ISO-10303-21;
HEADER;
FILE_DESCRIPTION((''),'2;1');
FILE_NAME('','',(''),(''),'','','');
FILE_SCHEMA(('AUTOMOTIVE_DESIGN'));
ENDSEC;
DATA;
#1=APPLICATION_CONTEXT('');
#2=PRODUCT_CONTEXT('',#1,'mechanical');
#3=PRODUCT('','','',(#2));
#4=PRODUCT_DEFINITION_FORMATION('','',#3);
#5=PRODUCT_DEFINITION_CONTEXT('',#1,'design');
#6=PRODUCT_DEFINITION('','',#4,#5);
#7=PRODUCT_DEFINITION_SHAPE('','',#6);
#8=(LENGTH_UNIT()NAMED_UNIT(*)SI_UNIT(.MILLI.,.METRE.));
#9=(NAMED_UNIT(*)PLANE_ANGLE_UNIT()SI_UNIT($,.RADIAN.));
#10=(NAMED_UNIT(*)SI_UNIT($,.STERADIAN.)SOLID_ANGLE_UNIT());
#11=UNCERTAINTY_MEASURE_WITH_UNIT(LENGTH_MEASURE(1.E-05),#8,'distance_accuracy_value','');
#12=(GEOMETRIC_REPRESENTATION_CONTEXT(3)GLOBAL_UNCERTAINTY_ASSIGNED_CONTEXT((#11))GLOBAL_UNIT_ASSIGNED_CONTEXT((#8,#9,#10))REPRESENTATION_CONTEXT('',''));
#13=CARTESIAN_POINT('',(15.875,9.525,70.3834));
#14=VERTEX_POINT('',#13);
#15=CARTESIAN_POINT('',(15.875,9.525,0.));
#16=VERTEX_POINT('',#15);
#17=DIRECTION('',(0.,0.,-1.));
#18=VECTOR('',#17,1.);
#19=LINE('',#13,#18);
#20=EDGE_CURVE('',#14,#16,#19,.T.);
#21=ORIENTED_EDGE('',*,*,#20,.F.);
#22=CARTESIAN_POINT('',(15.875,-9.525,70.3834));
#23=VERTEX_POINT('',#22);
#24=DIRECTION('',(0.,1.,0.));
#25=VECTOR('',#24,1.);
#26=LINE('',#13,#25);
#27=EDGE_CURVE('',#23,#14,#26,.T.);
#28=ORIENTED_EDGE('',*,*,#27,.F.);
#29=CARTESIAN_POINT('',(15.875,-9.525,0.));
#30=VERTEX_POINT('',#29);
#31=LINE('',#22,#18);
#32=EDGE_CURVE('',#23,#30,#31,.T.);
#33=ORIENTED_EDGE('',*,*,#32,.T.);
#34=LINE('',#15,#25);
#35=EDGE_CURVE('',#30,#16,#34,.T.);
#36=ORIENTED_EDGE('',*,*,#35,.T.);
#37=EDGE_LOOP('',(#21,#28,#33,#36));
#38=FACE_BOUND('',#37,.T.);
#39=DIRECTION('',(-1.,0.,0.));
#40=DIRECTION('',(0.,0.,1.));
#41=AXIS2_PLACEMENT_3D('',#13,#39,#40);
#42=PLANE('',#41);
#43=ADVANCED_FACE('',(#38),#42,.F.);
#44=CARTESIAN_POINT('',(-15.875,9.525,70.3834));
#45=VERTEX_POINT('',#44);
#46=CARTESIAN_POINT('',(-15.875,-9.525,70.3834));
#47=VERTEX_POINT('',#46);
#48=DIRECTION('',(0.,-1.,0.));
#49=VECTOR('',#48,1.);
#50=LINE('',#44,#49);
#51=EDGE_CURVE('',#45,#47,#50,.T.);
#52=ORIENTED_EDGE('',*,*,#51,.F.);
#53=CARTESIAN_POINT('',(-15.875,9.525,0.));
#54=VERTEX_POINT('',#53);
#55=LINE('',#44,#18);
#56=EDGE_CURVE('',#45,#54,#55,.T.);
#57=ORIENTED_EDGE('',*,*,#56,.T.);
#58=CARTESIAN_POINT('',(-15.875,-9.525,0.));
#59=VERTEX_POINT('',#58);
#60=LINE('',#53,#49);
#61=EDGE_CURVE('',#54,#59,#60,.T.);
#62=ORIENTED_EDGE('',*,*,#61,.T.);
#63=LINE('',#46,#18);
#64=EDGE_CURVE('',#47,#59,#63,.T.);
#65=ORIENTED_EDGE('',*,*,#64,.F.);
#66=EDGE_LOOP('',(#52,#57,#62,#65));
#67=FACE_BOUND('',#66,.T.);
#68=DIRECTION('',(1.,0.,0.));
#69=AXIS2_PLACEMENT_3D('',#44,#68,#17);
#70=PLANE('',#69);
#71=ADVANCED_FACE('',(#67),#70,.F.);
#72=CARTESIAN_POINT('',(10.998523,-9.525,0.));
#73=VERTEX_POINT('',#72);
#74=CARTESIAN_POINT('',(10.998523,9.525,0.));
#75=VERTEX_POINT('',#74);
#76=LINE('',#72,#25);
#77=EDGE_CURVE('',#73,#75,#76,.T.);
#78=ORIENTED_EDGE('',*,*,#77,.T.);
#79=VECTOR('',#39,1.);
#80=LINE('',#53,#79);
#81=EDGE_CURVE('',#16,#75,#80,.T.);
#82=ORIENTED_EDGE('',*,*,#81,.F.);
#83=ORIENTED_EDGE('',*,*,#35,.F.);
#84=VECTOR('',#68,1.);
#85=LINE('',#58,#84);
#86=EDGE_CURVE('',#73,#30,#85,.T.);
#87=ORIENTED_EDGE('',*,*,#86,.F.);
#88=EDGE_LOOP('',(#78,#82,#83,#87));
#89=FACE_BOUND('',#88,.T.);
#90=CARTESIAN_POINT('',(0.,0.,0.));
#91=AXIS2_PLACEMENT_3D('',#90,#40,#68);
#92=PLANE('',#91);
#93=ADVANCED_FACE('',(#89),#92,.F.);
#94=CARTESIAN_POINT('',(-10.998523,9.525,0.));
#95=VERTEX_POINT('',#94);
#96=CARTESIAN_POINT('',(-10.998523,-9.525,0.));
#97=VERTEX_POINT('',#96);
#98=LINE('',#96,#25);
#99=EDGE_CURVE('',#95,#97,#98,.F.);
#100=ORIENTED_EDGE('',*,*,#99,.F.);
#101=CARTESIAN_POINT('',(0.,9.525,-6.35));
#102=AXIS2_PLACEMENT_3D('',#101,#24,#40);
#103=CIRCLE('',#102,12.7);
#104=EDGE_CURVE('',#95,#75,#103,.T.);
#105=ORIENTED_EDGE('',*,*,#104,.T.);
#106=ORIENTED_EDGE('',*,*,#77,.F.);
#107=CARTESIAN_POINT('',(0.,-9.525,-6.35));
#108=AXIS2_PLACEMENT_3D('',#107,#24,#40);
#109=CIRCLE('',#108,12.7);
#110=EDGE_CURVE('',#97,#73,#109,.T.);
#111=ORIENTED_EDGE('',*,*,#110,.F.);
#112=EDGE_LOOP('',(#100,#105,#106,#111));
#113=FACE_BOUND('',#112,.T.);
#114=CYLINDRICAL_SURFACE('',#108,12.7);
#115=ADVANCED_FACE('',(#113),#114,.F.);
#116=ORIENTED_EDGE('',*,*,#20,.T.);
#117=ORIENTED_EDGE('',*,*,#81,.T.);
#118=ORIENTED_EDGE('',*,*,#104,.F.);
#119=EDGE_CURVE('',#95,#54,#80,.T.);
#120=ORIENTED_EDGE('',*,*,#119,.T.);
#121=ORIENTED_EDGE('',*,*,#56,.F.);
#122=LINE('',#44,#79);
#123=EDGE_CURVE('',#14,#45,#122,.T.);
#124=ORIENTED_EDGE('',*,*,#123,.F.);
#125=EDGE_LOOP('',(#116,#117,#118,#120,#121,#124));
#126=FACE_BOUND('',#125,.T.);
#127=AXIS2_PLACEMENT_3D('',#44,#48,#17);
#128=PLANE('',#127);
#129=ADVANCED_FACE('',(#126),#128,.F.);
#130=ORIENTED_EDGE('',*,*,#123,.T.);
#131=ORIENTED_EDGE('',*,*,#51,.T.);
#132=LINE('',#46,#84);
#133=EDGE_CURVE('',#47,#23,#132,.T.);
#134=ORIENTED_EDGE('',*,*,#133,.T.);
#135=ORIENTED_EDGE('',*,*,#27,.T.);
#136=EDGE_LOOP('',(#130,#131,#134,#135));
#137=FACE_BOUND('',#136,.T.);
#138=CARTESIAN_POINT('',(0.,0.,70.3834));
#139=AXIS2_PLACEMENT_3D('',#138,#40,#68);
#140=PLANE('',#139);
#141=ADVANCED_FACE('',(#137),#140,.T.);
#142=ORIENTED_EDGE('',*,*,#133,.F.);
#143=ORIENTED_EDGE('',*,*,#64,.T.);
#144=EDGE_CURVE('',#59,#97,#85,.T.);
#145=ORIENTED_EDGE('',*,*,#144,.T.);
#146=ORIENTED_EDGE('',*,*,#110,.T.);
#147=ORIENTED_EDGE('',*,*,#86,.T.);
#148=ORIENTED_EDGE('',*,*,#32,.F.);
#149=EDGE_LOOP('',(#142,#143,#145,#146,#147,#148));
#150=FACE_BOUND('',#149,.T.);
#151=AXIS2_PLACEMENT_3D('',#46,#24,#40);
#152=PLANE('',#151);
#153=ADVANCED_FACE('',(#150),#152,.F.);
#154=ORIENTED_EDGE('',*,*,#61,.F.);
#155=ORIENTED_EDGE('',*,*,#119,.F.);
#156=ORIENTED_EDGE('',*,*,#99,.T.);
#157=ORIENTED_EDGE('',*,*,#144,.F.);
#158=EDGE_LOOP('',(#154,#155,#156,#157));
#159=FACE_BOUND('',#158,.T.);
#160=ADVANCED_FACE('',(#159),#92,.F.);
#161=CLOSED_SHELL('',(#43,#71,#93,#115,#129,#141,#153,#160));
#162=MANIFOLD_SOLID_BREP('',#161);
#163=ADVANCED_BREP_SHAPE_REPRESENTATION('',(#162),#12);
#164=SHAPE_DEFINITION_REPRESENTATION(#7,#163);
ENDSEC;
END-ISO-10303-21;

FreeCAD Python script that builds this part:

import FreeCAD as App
import Part
import Sketcher
Q = App.Units.Quantity


def add_polygon(sketch, points):
    """Adds a closed chain of lines whose ends are joined by coincident constraints."""
    first, n = sketch.GeometryCount, len(points)
    for a, b in zip(points, points[1:] + points[:1]):
        sketch.addGeometry(Part.LineSegment(App.Vector(*a, 0), App.Vector(*b, 0)), False)
    for i in range(n):
        sketch.addConstraint(Sketcher.Constraint("Coincident", first + i, 2, first + (i + 1) % n, 1))

doc = App.newDocument("Part")
params = doc.addObject("Spreadsheet::Sheet", "Params")
for row, (alias, value) in enumerate([
    ("sketch1_width", "1.25 in"),
    ("sketch1_height", "0.75 in"),
    ("pad1_length", "2.771 in"),
    ("sketch2_diameter", "1 in"),
], start=1):
    params.set(f"A{row}", alias)
    params.set(f"B{row}", "=" + value)
    params.setAlias(f"B{row}", alias)

body = doc.addObject("PartDesign::Body", "Body")

sketch1 = body.newObject("Sketcher::SketchObject", "Sketch")
sketch1.AttachmentSupport = (doc.getObject("XY_Plane"), [""])
sketch1.MapMode = "FlatFace"
add_polygon(sketch1, [(-15.875, 9.525), (-15.875, -9.525), (15.875, -9.525), (15.875, 9.525)])
sketch1.addConstraint([
    Sketcher.Constraint("Vertical", 0),
    Sketcher.Constraint("Horizontal", 1),
    Sketcher.Constraint("Vertical", 2),
    Sketcher.Constraint("Horizontal", 3),
    Sketcher.Constraint("Symmetric", 0, 2, 2, 2, -1, 1),
    Sketcher.Constraint("DistanceX", 1, 1, 1, 2, Q("1.25 in")),
    Sketcher.Constraint("DistanceY", 0, 2, 0, 1, Q("0.75 in")),
])
sketch1.setExpression("Constraints[9]", "Params.sketch1_width")
sketch1.setExpression("Constraints[10]", "Params.sketch1_height")
pad1 = body.newObject("PartDesign::Pad", "Pad")
pad1.Profile = sketch1
pad1.setExpression("Length", "Params.pad1_length")

sketch2 = body.newObject("Sketcher::SketchObject", "Sketch001")
sketch2.AttachmentSupport = (doc.getObject("XZ_Plane"), [""])
sketch2.MapMode = "FlatFace"
sketch2.AttachmentOffset = App.Placement(App.Vector(0, 0, -0.375 * 25.4), App.Rotation())
sketch2.addGeometry(Part.Circle(App.Vector(0, -6.35, 0), App.Vector(0, 0, 1), 12.7), False)
sketch2.addConstraint([
    Sketcher.Constraint("PointOnObject", 0, 3, -2),
    Sketcher.Constraint("Diameter", 0, Q("1 in")),
    Sketcher.Constraint("DistanceY", 0, 3, -1, 1, Q("0.25 in")),
])
sketch2.setExpression("Constraints[1]", "Params.sketch2_diameter")
pocket1 = body.newObject("PartDesign::Pocket", "Pocket")
pocket1.Profile = sketch2
pocket1.Type = "ThroughAll"
pocket1.Reversed = True

doc.recompute()
